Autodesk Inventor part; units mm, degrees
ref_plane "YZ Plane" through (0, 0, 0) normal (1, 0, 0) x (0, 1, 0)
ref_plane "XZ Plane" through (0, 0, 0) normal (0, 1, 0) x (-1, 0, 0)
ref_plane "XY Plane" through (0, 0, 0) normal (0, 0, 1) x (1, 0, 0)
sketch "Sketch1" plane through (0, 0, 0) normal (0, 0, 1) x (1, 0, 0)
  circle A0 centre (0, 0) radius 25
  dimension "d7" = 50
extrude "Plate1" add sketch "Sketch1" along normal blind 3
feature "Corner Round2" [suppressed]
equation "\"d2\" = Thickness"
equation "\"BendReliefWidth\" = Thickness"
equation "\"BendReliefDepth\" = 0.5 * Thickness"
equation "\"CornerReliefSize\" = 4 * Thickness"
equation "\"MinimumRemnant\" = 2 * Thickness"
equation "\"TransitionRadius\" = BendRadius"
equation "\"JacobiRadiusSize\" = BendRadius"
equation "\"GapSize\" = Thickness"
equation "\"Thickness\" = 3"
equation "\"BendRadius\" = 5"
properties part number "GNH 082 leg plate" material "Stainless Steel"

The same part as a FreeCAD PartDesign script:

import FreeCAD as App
import Part
import Sketcher
from FreeCAD import Vector
Q = App.Units.Quantity

doc = App.newDocument("Part")
params = doc.addObject("Spreadsheet::Sheet", "Params")
for row, (alias, value) in enumerate([
    ("sketch1_diameter", "50 mm"),
    ("pad1_length", "3 mm"),
], start=1):
    params.set(f"A{row}", alias)
    params.set(f"B{row}", "=" + value)
    params.setAlias(f"B{row}", alias)

body = doc.addObject("PartDesign::Body", "Body")

# Sketch on XY plane
sketch1 = body.newObject("Sketcher::SketchObject", "Sketch")
sketch1.AttachmentSupport = (doc.getObject("XY_Plane"), [""])
sketch1.MapMode = "FlatFace"
sketch1.addGeometry(Part.Circle(Vector(0, 0, 0), Vector(0, 0, 1), 25), False)
sketch1.addConstraint([
    Sketcher.Constraint("Coincident", 0, 3, -1, 1),
    Sketcher.Constraint("Diameter", 0, Q("50 mm")),
])
sketch1.setExpression("Constraints[1]", "Params.sketch1_diameter")
pad1 = body.newObject("PartDesign::Pad", "Pad")
pad1.Profile = sketch1
pad1.setExpression("Length", "Params.pad1_length")

doc.recompute()
